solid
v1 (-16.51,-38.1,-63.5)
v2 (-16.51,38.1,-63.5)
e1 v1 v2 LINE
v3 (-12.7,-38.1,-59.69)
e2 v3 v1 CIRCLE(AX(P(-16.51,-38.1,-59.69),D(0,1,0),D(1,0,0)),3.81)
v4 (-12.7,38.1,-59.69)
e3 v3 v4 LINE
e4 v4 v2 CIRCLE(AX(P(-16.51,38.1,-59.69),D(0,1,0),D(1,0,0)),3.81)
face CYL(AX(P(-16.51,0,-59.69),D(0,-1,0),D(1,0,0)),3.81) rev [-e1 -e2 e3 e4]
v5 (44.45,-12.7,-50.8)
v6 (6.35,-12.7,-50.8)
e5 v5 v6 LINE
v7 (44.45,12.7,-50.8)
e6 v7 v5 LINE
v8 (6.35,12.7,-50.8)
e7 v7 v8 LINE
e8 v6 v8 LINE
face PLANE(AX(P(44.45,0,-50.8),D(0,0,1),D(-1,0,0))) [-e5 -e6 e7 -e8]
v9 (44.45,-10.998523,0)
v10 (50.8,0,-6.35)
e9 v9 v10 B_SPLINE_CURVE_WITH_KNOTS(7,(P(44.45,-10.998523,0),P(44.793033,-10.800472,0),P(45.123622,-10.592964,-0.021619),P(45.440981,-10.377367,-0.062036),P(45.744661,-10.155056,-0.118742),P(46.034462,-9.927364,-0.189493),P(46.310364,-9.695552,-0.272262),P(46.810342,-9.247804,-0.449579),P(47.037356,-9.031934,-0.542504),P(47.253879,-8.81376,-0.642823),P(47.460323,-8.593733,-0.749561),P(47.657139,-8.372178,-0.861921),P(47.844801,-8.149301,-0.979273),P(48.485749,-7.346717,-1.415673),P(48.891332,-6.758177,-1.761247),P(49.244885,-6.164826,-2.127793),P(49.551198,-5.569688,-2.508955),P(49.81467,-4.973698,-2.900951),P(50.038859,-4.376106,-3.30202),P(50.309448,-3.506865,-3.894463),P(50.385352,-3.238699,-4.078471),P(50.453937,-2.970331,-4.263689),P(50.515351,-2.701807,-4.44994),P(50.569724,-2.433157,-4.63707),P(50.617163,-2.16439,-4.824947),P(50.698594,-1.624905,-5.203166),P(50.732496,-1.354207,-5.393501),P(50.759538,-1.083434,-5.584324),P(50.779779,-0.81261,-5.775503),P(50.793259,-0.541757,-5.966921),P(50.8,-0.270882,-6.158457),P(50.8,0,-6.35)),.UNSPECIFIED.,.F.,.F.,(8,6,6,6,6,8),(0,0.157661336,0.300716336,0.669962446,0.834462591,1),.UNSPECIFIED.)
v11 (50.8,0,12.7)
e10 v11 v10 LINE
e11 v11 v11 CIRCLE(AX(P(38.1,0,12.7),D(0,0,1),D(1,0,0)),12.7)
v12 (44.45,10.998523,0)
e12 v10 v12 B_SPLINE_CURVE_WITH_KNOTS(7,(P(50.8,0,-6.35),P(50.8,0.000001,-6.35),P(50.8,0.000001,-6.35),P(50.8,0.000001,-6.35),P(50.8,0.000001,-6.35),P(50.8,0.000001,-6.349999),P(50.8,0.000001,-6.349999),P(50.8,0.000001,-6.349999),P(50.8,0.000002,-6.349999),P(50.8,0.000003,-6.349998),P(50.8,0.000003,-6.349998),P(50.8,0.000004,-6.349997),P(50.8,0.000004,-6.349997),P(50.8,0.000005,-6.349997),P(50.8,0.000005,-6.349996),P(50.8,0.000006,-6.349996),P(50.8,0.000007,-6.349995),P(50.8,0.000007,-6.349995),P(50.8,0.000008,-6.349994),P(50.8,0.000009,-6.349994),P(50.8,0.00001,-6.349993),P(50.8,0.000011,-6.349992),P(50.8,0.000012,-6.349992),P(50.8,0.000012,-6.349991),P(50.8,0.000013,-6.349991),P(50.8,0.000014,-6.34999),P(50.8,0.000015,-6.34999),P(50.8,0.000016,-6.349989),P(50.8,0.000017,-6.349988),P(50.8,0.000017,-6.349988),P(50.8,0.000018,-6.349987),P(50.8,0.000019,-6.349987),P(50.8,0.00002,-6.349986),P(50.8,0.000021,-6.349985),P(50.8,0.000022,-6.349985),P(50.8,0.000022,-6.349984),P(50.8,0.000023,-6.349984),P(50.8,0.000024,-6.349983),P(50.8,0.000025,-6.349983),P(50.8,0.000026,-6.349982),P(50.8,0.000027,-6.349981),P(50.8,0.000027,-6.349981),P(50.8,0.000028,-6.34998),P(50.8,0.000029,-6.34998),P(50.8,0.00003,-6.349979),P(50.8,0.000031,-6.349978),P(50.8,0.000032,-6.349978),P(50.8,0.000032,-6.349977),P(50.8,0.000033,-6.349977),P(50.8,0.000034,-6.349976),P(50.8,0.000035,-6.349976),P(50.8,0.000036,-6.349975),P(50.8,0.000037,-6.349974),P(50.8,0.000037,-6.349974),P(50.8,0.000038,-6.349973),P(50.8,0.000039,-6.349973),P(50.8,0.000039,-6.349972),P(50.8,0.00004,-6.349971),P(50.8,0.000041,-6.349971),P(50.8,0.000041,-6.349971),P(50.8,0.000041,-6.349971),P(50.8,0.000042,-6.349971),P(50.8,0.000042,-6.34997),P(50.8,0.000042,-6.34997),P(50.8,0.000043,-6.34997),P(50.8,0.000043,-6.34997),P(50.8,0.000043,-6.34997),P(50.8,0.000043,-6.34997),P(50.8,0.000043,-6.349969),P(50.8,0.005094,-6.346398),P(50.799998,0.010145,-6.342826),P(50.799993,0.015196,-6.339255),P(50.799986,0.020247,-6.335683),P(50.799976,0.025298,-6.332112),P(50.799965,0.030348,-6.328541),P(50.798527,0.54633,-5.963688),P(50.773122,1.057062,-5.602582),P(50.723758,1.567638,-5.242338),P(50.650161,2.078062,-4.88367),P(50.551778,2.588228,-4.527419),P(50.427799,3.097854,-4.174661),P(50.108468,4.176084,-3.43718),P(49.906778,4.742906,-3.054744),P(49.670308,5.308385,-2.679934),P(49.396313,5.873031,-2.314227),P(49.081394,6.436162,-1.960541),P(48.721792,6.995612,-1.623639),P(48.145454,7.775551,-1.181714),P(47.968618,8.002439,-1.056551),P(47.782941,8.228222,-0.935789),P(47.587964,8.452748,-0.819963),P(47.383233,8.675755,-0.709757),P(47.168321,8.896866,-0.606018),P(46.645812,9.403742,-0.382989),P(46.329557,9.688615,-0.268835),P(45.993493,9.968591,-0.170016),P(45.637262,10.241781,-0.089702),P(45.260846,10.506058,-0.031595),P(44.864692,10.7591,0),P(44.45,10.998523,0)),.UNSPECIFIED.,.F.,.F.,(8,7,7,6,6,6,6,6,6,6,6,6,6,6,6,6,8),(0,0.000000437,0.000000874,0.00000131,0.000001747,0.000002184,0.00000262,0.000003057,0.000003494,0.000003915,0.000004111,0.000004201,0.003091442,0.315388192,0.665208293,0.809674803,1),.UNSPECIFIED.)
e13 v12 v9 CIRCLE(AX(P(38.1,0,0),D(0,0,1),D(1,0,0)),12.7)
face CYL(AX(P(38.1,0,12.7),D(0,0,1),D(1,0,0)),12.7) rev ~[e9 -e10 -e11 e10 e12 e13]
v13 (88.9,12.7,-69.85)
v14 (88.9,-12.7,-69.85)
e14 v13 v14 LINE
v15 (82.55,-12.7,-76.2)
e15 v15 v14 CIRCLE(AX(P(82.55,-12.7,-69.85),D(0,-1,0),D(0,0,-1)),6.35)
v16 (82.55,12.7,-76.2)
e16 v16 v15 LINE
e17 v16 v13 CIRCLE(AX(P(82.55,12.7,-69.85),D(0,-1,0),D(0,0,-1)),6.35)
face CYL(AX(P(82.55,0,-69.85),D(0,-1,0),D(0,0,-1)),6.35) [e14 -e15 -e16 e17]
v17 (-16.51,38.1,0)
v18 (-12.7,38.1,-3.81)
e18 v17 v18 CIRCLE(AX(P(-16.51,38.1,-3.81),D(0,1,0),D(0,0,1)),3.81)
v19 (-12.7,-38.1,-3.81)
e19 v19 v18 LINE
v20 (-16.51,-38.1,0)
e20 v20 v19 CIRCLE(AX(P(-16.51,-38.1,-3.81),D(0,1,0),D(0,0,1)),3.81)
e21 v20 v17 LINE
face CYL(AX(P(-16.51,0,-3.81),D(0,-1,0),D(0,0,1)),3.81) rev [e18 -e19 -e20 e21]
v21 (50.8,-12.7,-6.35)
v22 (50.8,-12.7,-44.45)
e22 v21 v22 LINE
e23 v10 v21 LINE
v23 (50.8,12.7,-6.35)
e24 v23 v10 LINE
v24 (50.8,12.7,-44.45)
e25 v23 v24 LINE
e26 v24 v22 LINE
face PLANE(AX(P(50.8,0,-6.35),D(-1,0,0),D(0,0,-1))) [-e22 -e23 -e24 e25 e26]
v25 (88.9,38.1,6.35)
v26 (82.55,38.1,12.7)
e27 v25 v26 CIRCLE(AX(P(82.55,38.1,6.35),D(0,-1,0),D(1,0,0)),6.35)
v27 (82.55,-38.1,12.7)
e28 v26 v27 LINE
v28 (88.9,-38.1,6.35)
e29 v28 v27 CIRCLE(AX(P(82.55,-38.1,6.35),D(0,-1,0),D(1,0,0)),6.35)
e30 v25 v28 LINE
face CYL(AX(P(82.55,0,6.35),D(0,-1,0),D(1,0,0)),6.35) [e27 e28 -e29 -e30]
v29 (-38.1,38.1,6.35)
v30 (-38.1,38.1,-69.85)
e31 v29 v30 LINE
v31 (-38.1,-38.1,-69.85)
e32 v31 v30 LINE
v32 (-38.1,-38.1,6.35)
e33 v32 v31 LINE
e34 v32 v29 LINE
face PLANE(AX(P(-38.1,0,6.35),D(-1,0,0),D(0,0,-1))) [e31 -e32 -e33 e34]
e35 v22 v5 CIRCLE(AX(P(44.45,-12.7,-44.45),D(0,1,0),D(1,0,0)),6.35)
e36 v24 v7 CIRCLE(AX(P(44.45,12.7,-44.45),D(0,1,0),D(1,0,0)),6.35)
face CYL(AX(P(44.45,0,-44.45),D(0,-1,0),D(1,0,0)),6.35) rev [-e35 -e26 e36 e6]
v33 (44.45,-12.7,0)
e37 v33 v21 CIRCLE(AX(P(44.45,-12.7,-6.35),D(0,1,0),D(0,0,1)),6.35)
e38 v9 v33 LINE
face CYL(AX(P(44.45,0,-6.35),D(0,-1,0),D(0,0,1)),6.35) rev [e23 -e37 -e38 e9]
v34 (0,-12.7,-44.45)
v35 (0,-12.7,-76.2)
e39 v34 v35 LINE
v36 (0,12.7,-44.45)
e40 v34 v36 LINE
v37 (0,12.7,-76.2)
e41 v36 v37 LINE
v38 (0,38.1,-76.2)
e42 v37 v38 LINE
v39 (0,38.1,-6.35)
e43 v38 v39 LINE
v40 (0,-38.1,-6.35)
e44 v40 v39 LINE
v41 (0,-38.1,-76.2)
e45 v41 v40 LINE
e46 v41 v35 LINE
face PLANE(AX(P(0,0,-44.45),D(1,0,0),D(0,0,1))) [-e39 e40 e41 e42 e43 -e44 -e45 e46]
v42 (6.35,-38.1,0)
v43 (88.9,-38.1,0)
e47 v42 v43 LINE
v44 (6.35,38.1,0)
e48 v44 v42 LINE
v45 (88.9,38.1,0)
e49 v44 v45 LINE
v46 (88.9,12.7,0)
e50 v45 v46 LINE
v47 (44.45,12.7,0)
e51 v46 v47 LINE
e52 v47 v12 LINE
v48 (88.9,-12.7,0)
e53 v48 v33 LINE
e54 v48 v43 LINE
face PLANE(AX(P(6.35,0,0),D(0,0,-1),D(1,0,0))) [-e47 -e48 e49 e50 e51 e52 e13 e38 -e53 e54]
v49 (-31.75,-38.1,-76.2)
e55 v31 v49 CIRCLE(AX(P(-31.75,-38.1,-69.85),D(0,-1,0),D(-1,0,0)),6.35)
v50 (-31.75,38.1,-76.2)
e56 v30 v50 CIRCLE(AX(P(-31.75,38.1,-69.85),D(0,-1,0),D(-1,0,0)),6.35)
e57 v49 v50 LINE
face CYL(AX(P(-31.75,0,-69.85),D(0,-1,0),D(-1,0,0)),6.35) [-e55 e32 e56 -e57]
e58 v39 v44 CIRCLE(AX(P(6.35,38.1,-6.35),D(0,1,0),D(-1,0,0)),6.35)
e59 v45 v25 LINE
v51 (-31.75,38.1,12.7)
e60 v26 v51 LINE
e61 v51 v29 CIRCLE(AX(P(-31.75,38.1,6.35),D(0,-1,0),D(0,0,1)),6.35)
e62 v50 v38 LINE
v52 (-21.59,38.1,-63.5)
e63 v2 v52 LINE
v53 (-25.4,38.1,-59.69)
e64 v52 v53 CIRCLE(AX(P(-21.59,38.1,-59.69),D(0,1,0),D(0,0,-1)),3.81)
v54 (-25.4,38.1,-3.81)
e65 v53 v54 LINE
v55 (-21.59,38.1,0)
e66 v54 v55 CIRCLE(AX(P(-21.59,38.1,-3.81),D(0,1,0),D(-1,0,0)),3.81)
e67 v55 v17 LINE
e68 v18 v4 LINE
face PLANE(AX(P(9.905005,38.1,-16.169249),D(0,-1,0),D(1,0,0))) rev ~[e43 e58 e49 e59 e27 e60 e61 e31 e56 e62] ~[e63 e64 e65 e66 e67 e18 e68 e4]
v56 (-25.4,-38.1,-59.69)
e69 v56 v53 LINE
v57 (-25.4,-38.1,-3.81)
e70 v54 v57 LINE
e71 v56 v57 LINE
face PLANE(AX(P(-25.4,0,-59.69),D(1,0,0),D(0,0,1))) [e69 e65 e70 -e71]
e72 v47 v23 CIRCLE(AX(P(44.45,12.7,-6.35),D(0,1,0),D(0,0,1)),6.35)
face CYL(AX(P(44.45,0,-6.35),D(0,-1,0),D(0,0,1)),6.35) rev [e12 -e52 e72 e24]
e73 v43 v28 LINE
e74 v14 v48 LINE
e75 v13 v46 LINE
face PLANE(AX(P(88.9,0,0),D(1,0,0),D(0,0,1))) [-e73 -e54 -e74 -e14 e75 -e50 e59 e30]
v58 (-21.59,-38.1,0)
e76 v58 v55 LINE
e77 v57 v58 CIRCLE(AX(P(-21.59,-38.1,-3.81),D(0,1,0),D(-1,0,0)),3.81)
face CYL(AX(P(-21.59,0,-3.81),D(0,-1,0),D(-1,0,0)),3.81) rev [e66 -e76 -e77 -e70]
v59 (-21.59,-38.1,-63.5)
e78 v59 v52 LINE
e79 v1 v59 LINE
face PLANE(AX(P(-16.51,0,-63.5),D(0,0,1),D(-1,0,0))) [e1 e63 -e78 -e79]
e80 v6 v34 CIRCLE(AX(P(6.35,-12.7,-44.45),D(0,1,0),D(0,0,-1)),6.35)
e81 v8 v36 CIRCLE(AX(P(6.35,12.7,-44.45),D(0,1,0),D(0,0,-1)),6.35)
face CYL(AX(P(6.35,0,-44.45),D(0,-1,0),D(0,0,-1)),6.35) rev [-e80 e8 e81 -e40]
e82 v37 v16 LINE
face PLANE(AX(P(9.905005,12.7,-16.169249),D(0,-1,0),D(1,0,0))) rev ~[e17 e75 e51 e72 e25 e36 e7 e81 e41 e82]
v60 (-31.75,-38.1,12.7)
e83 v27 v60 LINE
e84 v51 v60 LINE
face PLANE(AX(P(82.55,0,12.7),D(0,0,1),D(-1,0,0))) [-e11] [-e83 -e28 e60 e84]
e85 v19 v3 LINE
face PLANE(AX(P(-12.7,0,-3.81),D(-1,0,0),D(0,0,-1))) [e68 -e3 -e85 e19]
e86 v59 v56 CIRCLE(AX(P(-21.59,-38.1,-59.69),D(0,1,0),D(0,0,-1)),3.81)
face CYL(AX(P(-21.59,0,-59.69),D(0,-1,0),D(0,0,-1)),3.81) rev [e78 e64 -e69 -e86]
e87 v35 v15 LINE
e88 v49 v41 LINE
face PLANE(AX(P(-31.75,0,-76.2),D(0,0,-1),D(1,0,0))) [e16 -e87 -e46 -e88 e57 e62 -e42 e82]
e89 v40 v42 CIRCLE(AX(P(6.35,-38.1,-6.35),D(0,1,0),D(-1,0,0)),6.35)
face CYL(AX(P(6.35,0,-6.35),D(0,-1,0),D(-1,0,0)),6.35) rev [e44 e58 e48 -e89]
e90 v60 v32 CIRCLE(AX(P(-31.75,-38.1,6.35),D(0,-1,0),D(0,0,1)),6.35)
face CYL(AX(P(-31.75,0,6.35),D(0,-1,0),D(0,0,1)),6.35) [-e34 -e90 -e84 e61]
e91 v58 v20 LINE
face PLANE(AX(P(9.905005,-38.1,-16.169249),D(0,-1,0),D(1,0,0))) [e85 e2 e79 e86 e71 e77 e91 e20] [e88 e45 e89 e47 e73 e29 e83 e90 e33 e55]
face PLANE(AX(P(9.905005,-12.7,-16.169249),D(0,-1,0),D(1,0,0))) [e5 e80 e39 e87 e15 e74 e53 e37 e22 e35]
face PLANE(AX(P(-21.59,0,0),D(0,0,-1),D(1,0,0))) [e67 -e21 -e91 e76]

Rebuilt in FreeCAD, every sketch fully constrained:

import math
import FreeCAD as App
import Part
import Sketcher
from FreeCAD import Vector
Q = App.Units.Quantity

doc = App.newDocument("Part")
body = doc.addObject("PartDesign::Body", "Body")

# Sketch on XZ plane
sketch1 = body.newObject("Sketcher::SketchObject", "Sketch")
sketch1.AttachmentSupport = (doc.getObject("XZ_Plane"), [""])
sketch1.MapMode = "FlatFace"
sketch1.addGeometry([
    Part.ArcOfCircle(Part.Circle(Vector(6.35, -6.35, 0), Vector(0, 0, 1), 6.35), math.radians(90), math.radians(180)),  # 0
    Part.LineSegment(Vector(6.35, 0, 0), Vector(88.9, 0, 0)),  # 1
    Part.LineSegment(Vector(88.9, 0, 0), Vector(88.9, 6.35, 0)),  # 2
    Part.ArcOfCircle(Part.Circle(Vector(82.55, 6.35, 0), Vector(0, 0, 1), 6.35), math.radians(0), math.radians(90)),  # 3
    Part.LineSegment(Vector(82.55, 12.7, 0), Vector(-31.75, 12.7, 0)),  # 4
    Part.ArcOfCircle(Part.Circle(Vector(-31.75, 6.35, 0), Vector(0, 0, 1), 6.35), math.radians(90), math.radians(180)),  # 5
    Part.LineSegment(Vector(-38.1, 6.35, 0), Vector(-38.1, -69.85, 0)),  # 6
    Part.ArcOfCircle(Part.Circle(Vector(-31.75, -69.85, 0), Vector(0, 0, 1), 6.35), math.radians(180), math.radians(270)),  # 7
    Part.LineSegment(Vector(-31.75, -76.2, 0), Vector(0, -76.2, 0)),  # 8
    Part.LineSegment(Vector(0, -76.2, 0), Vector(0, -6.35, 0)),  # 9
    Part.LineSegment(Vector(-25.4, -59.69, 0), Vector(-25.4, -3.81, 0)),  # 10
    Part.ArcOfCircle(Part.Circle(Vector(-21.59, -3.81, 0), Vector(0, 0, 1), 3.81), math.radians(90), math.radians(180)),  # 11
    Part.LineSegment(Vector(-21.59, 0, 0), Vector(-16.51, 0, 0)),  # 12
    Part.ArcOfCircle(Part.Circle(Vector(-16.51, -3.81, 0), Vector(0, 0, 1), 3.81), math.radians(0), math.radians(90)),  # 13
    Part.LineSegment(Vector(-12.7, -3.81, 0), Vector(-12.7, -59.69, 0)),  # 14
    Part.ArcOfCircle(Part.Circle(Vector(-16.51, -59.69, 0), Vector(0, 0, 1), 3.81), math.radians(-90), math.radians(0)),  # 15
    Part.LineSegment(Vector(-16.51, -63.5, 0), Vector(-21.59, -63.5, 0)),  # 16
    Part.ArcOfCircle(Part.Circle(Vector(-21.59, -59.69, 0), Vector(0, 0, 1), 3.81), math.radians(180), math.radians(270)),  # 17
], False)
sketch1.addConstraint([
    Sketcher.Constraint("Tangent", 0, 1, 1, 1),
    Sketcher.Constraint("Coincident", 1, 2, 2, 1),
    Sketcher.Constraint("Tangent", 2, 2, 3, 1),
    Sketcher.Constraint("Tangent", 3, 2, 4, 1),
    Sketcher.Constraint("Tangent", 4, 2, 5, 1),
    Sketcher.Constraint("Tangent", 5, 2, 6, 1),
    Sketcher.Constraint("Tangent", 6, 2, 7, 1),
    Sketcher.Constraint("Tangent", 7, 2, 8, 1),
    Sketcher.Constraint("Coincident", 8, 2, 9, 1),
    Sketcher.Constraint("Tangent", 9, 2, 0, 2),
    Sketcher.Constraint("Tangent", 10, 2, 11, 2),
    Sketcher.Constraint("Tangent", 11, 1, 12, 1),
    Sketcher.Constraint("Tangent", 12, 2, 13, 2),
    Sketcher.Constraint("Tangent", 13, 1, 14, 1),
    Sketcher.Constraint("Tangent", 14, 2, 15, 2),
    Sketcher.Constraint("Tangent", 15, 1, 16, 1),
    Sketcher.Constraint("Tangent", 16, 2, 17, 2),
    Sketcher.Constraint("Tangent", 17, 1, 10, 1),
    Sketcher.Constraint("Horizontal", 1),
    Sketcher.Constraint("Vertical", 2),
    Sketcher.Constraint("Horizontal", 4),
    Sketcher.Constraint("Vertical", 6),
    Sketcher.Constraint("Horizontal", 8),
    Sketcher.Constraint("Vertical", 9),
    Sketcher.Constraint("Vertical", 10),
    Sketcher.Constraint("Horizontal", 12),
    Sketcher.Constraint("Vertical", 14),
    Sketcher.Constraint("Horizontal", 16),
    Sketcher.Constraint("Equal", 0, 3),
    Sketcher.Constraint("Equal", 3, 5),
    Sketcher.Constraint("Equal", 5, 7),
    Sketcher.Constraint("Equal", 11, 13),
    Sketcher.Constraint("Equal", 13, 15),
    Sketcher.Constraint("Equal", 15, 17),
    Sketcher.Constraint("PointOnObject", 0, 1, -1),
    Sketcher.Constraint("PointOnObject", 8, 2, -2),
    Sketcher.Constraint("PointOnObject", 11, 1, -1),
    Sketcher.Constraint("DistanceY", 6, 2, 6, 1, Q("3 in")),
    Sketcher.Constraint("Radius", 0, Q("0.25 in")),
    Sketcher.Constraint("Radius", 11, Q("0.15 in")),
    Sketcher.Constraint("DistanceX", 4, 2, 4, 1, Q("4.5 in")),
    Sketcher.Constraint("DistanceX", 12, 1, 12, 2, Q("0.2 in")),
    Sketcher.Constraint("DistanceY", 10, 1, 10, 2, Q("2.2 in")),
    Sketcher.Constraint("DistanceY", 7, 2, -1, 1, Q("3 in")),
    Sketcher.Constraint("DistanceX", 10, 2, -1, 1, Q("1 in")),
    Sketcher.Constraint("DistanceX", 0, 3, 3, 3, Q("3 in")),
])
pad1 = body.newObject("PartDesign::Pad", "Pad")
pad1.Profile = sketch1
pad1.Length = Q("3 in")
pad1.Midplane = True

# Sketch on XZ plane
sketch2 = body.newObject("Sketcher::SketchObject", "Sketch001")
sketch2.AttachmentSupport = (doc.getObject("XZ_Plane"), [""])
sketch2.MapMode = "FlatFace"
sketch2.addGeometry([
    Part.LineSegment(Vector(-31.75, -76.2, 0), Vector(82.55, -76.2, 0)),  # 0
    Part.ArcOfCircle(Part.Circle(Vector(82.55, -69.85, 0), Vector(0, 0, 1), 6.35), math.radians(-90), math.radians(0)),  # 1
    Part.LineSegment(Vector(88.9, -69.85, 0), Vector(88.9, 6.35, 0)),  # 2
    Part.ArcOfCircle(Part.Circle(Vector(82.55, 6.35, 0), Vector(0, 0, 1), 6.35), math.radians(0), math.radians(90)),  # 3
    Part.LineSegment(Vector(82.55, 12.7, 0), Vector(-31.75, 12.7, 0)),  # 4
    Part.ArcOfCircle(Part.Circle(Vector(-31.75, 6.35, 0), Vector(0, 0, 1), 6.35), math.radians(90), math.radians(180)),  # 5
    Part.LineSegment(Vector(-38.1, 6.35, 0), Vector(-38.1, -69.85, 0)),  # 6
    Part.ArcOfCircle(Part.Circle(Vector(-31.75, -69.85, 0), Vector(0, 0, 1), 6.35), math.radians(180), math.radians(270)),  # 7
    Part.ArcOfCircle(Part.Circle(Vector(6.35, -6.35, 0), Vector(0, 0, 1), 6.35), math.radians(90), math.radians(180)),  # 8
    Part.LineSegment(Vector(6.35, 0, 0), Vector(44.45, 0, 0)),  # 9
    Part.ArcOfCircle(Part.Circle(Vector(44.45, -6.35, 0), Vector(0, 0, 1), 6.35), math.radians(0), math.radians(90)),  # 10
    Part.LineSegment(Vector(50.8, -6.35, 0), Vector(50.8, -44.45, 0)),  # 11
    Part.ArcOfCircle(Part.Circle(Vector(44.45, -44.45, 0), Vector(0, 0, 1), 6.35), math.radians(-90), math.radians(0)),  # 12
    Part.LineSegment(Vector(44.45, -50.8, 0), Vector(6.35, -50.8, 0)),  # 13
    Part.ArcOfCircle(Part.Circle(Vector(6.35, -44.45, 0), Vector(0, 0, 1), 6.35), math.radians(180), math.radians(270)),  # 14
    Part.LineSegment(Vector(0, -44.45, 0), Vector(0, -6.35, 0)),  # 15
    Part.LineSegment(Vector(-25.4, -59.69, 0), Vector(-25.4, -3.81, 0)),  # 16
    Part.ArcOfCircle(Part.Circle(Vector(-21.59, -3.81, 0), Vector(0, 0, 1), 3.81), math.radians(90), math.radians(180)),  # 17
    Part.LineSegment(Vector(-21.59, 0, 0), Vector(-16.51, 0, 0)),  # 18
    Part.ArcOfCircle(Part.Circle(Vector(-16.51, -3.81, 0), Vector(0, 0, 1), 3.81), math.radians(0), math.radians(90)),  # 19
    Part.LineSegment(Vector(-12.7, -3.81, 0), Vector(-12.7, -59.69, 0)),  # 20
    Part.ArcOfCircle(Part.Circle(Vector(-16.51, -59.69, 0), Vector(0, 0, 1), 3.81), math.radians(-90), math.radians(0)),  # 21
    Part.LineSegment(Vector(-16.51, -63.5, 0), Vector(-21.59, -63.5, 0)),  # 22
    Part.ArcOfCircle(Part.Circle(Vector(-21.59, -59.69, 0), Vector(0, 0, 1), 3.81), math.radians(180), math.radians(270)),  # 23
], False)
sketch2.addConstraint([
    Sketcher.Constraint("Tangent", 0, 2, 1, 1),
    Sketcher.Constraint("Tangent", 1, 2, 2, 1),
    Sketcher.Constraint("Tangent", 2, 2, 3, 1),
    Sketcher.Constraint("Tangent", 3, 2, 4, 1),
    Sketcher.Constraint("Tangent", 4, 2, 5, 1),
    Sketcher.Constraint("Tangent", 5, 2, 6, 1),
    Sketcher.Constraint("Tangent", 6, 2, 7, 1),
    Sketcher.Constraint("Tangent", 7, 2, 0, 1),
    Sketcher.Constraint("Tangent", 8, 1, 9, 1),
    Sketcher.Constraint("Tangent", 9, 2, 10, 2),
    Sketcher.Constraint("Tangent", 10, 1, 11, 1),
    Sketcher.Constraint("Tangent", 11, 2, 12, 2),
    Sketcher.Constraint("Tangent", 12, 1, 13, 1),
    Sketcher.Constraint("Tangent", 13, 2, 14, 2),
    Sketcher.Constraint("Tangent", 14, 1, 15, 1),
    Sketcher.Constraint("Tangent", 15, 2, 8, 2),
    Sketcher.Constraint("Tangent", 16, 2, 17, 2),
    Sketcher.Constraint("Tangent", 17, 1, 18, 1),
    Sketcher.Constraint("Tangent", 18, 2, 19, 2),
    Sketcher.Constraint("Tangent", 19, 1, 20, 1),
    Sketcher.Constraint("Tangent", 20, 2, 21, 2),
    Sketcher.Constraint("Tangent", 21, 1, 22, 1),
    Sketcher.Constraint("Tangent", 22, 2, 23, 2),
    Sketcher.Constraint("Tangent", 23, 1, 16, 1),
    Sketcher.Constraint("Horizontal", 0),
    Sketcher.Constraint("Vertical", 2),
    Sketcher.Constraint("Horizontal", 4),
    Sketcher.Constraint("Vertical", 6),
    Sketcher.Constraint("Horizontal", 9),
    Sketcher.Constraint("Vertical", 11),
    Sketcher.Constraint("Horizontal", 13),
    Sketcher.Constraint("Vertical", 15),
    Sketcher.Constraint("Vertical", 16),
    Sketcher.Constraint("Horizontal", 18),
    Sketcher.Constraint("Vertical", 20),
    Sketcher.Constraint("Horizontal", 22),
    Sketcher.Constraint("Equal", 1, 3),
    Sketcher.Constraint("Equal", 3, 5),
    Sketcher.Constraint("Equal", 5, 7),
    Sketcher.Constraint("Equal", 7, 8),
    Sketcher.Constraint("Equal", 8, 10),
    Sketcher.Constraint("Equal", 10, 12),
    Sketcher.Constraint("Equal", 12, 14),
    Sketcher.Constraint("Equal", 17, 19),
    Sketcher.Constraint("Equal", 19, 21),
    Sketcher.Constraint("Equal", 21, 23),
    Sketcher.Constraint("PointOnObject", 8, 1, -1),
    Sketcher.Constraint("PointOnObject", 14, 1, -2),
    Sketcher.Constraint("PointOnObject", 17, 1, -1),
    Sketcher.Constraint("Equal", 13, 11),
    Sketcher.Constraint("DistanceY", 2, 1, 2, 2, Q("3 in")),
    Sketcher.Constraint("Radius", 1, Q("0.25 in")),
    Sketcher.Constraint("Radius", 17, Q("0.15 in")),
    Sketcher.Constraint("DistanceX", 0, 1, 0, 2, Q("4.5 in")),
    Sketcher.Constraint("DistanceX", 9, 1, 9, 2, Q("1.5 in")),
    Sketcher.Constraint("DistanceX", 18, 1, 18, 2, Q("0.2 in")),
    Sketcher.Constraint("DistanceY", 16, 1, 16, 2, Q("2.2 in")),
    Sketcher.Constraint("DistanceY", 0, 2, -1, 1, Q("3 in")),
    Sketcher.Constraint("DistanceX", 16, 2, -1, 1, Q("1 in")),
    Sketcher.Constraint("DistanceX", 8, 3, 3, 3, Q("3 in")),
])
pad2 = body.newObject("PartDesign::Pad", "Pad001")
pad2.Profile = sketch2
pad2.Length = Q("1 in")
pad2.Midplane = True

# Sketch on XY plane
sketch3 = body.newObject("Sketcher::SketchObject", "Sketch002")
sketch3.AttachmentSupport = (doc.getObject("XY_Plane"), [""])
sketch3.MapMode = "FlatFace"
sketch3.AttachmentOffset = App.Placement(Vector(0, 0, 0.5 * 25.4), App.Rotation())
sketch3.addGeometry(Part.Circle(Vector(38.1, 0, 0), Vector(0, 0, 1), 12.7), False)
sketch3.addConstraint([
    Sketcher.Constraint("PointOnObject", 0, 3, -1),
    Sketcher.Constraint("Diameter", 0, Q("1 in")),
    Sketcher.Constraint("DistanceX", -1, 1, 0, 3, Q("1.5 in")),
])
pocket1 = body.newObject("PartDesign::Pocket", "Pocket")
pocket1.Profile = sketch3
pocket1.Length = Q("1 in")

doc.recompute()
